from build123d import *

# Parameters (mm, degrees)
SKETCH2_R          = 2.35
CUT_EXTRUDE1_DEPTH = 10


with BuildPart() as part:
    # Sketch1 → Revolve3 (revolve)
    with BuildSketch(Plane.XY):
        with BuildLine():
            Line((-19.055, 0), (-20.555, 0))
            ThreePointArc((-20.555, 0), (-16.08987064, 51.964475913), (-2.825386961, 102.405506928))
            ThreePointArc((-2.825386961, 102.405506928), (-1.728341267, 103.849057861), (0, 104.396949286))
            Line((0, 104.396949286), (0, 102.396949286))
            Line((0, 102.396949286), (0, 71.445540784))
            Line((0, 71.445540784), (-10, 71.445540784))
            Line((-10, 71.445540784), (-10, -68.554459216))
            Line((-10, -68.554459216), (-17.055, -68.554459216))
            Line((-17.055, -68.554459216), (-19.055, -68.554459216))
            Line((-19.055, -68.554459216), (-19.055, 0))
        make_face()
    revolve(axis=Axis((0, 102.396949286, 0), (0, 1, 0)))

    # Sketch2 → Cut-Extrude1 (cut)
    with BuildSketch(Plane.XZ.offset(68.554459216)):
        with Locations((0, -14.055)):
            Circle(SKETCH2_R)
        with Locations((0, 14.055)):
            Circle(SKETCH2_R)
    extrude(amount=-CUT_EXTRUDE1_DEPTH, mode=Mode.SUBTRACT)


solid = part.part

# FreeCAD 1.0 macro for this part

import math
import FreeCAD as App
import Part
import Sketcher

V = App.Vector

doc = App.newDocument("Part")
body = doc.addObject("PartDesign::Body", "Body")

sketch1 = doc.addObject("Sketcher::SketchObject", "Sketch")
body.addObject(sketch1)
sketch1.AttachmentSupport = (doc.XY_Plane, [""])
sketch1.MapMode = "FlatFace"
sketch1.addGeometry([
    Part.LineSegment(V(-20.6, 0, 0), V(-19.1, 0, 0)),
    Part.LineSegment(V(-19.1, 0, 0), V(-19.1, -68.6, 0)),
    Part.LineSegment(V(-19.1, -68.6, 0), V(-10, -68.6, 0)),
    Part.LineSegment(V(-10, -68.6, 0), V(-10, 71.4, 0)),
    Part.LineSegment(V(-10, 71.4, 0), V(0, 71.4, 0)),
    Part.LineSegment(V(0, 71.4, 0), V(0, 104.4, 0)),
    Part.ArcOfCircle(Part.Circle(V(0, 101.4, 0), V(0, 0, 1), 3), math.radians(90), math.radians(160)),
    Part.ArcOfCircle(Part.Circle(V(284.1, 0, 0), V(0, 0, 1), 304.6), math.radians(160.36), math.radians(180)),
], False)
sketch1.addConstraint([
    Sketcher.Constraint("Coincident", 0, 2, 1, 1),
    Sketcher.Constraint("Coincident", 1, 2, 2, 1),
    Sketcher.Constraint("Coincident", 2, 2, 3, 1),
    Sketcher.Constraint("Coincident", 3, 2, 4, 1),
    Sketcher.Constraint("Coincident", 4, 2, 5, 1),
    Sketcher.Constraint("Coincident", 5, 2, 6, 1),
    Sketcher.Constraint("Tangent", 6, 2, 7, 1),
    Sketcher.Constraint("Coincident", 7, 2, 0, 1),
    Sketcher.Constraint("Horizontal", 0),
    Sketcher.Constraint("Vertical", 1),
    Sketcher.Constraint("Horizontal", 2),
    Sketcher.Constraint("Vertical", 3),
    Sketcher.Constraint("Horizontal", 4),
    Sketcher.Constraint("Vertical", 5),
    Sketcher.Constraint("PointOnObject", 6, 3, -2),
    Sketcher.Constraint("PointOnObject", 7, 3, -1),
    Sketcher.Constraint("PointOnObject", 0, 2, -1),
    Sketcher.Constraint("PointOnObject", 4, 2, -2),
    Sketcher.Constraint("Radius", 6, 3.0),
    Sketcher.Constraint("DistanceX", 4, 1, 4, 2, 10.0),
    Sketcher.Constraint("DistanceY", 3, 1, 3, 2, 140.0),
    Sketcher.Constraint("DistanceX", 0, 1, 0, 2, 1.5),
    Sketcher.Constraint("DistanceX", 2, 1, 2, 2, 9.055),
    Sketcher.Constraint("Radius", 7, 304.609779),
    Sketcher.Constraint("DistanceY", 1, 2, 1, 1, 68.554459),
])
revolution = doc.addObject("PartDesign::Revolution", "Revolution")
body.addObject(revolution)
revolution.Profile = sketch1
revolution.ReferenceAxis = (sketch1, ["V_Axis"])
revolution.Angle = 360

sketch2 = doc.addObject("Sketcher::SketchObject", "Sketch001")
body.addObject(sketch2)
sketch2.AttachmentSupport = (doc.XZ_Plane, [""])
sketch2.MapMode = "FlatFace"
sketch2.AttachmentOffset = App.Placement(V(0, 0, 68.554459), App.Rotation())
sketch2.addGeometry([
    Part.Circle(V(0, -14.1, 0), V(0, 0, 1), 2.4),
    Part.Circle(V(0, 14.1, 0), V(0, 0, 1), 2.4),
], False)
sketch2.addConstraint([
    Sketcher.Constraint("Equal", 0, 1),
    Sketcher.Constraint("Symmetric", 0, 3, 1, 3, -1, 1),
    Sketcher.Constraint("PointOnObject", 0, 3, -2),
    Sketcher.Constraint("Diameter", 0, 4.7),
    Sketcher.Constraint("DistanceY", 0, 3, 1, 3, 28.11),
])
pocket1 = doc.addObject("PartDesign::Pocket", "Pocket")
body.addObject(pocket1)
pocket1.Profile = sketch2
pocket1.Length = 10

doc.recompute()
